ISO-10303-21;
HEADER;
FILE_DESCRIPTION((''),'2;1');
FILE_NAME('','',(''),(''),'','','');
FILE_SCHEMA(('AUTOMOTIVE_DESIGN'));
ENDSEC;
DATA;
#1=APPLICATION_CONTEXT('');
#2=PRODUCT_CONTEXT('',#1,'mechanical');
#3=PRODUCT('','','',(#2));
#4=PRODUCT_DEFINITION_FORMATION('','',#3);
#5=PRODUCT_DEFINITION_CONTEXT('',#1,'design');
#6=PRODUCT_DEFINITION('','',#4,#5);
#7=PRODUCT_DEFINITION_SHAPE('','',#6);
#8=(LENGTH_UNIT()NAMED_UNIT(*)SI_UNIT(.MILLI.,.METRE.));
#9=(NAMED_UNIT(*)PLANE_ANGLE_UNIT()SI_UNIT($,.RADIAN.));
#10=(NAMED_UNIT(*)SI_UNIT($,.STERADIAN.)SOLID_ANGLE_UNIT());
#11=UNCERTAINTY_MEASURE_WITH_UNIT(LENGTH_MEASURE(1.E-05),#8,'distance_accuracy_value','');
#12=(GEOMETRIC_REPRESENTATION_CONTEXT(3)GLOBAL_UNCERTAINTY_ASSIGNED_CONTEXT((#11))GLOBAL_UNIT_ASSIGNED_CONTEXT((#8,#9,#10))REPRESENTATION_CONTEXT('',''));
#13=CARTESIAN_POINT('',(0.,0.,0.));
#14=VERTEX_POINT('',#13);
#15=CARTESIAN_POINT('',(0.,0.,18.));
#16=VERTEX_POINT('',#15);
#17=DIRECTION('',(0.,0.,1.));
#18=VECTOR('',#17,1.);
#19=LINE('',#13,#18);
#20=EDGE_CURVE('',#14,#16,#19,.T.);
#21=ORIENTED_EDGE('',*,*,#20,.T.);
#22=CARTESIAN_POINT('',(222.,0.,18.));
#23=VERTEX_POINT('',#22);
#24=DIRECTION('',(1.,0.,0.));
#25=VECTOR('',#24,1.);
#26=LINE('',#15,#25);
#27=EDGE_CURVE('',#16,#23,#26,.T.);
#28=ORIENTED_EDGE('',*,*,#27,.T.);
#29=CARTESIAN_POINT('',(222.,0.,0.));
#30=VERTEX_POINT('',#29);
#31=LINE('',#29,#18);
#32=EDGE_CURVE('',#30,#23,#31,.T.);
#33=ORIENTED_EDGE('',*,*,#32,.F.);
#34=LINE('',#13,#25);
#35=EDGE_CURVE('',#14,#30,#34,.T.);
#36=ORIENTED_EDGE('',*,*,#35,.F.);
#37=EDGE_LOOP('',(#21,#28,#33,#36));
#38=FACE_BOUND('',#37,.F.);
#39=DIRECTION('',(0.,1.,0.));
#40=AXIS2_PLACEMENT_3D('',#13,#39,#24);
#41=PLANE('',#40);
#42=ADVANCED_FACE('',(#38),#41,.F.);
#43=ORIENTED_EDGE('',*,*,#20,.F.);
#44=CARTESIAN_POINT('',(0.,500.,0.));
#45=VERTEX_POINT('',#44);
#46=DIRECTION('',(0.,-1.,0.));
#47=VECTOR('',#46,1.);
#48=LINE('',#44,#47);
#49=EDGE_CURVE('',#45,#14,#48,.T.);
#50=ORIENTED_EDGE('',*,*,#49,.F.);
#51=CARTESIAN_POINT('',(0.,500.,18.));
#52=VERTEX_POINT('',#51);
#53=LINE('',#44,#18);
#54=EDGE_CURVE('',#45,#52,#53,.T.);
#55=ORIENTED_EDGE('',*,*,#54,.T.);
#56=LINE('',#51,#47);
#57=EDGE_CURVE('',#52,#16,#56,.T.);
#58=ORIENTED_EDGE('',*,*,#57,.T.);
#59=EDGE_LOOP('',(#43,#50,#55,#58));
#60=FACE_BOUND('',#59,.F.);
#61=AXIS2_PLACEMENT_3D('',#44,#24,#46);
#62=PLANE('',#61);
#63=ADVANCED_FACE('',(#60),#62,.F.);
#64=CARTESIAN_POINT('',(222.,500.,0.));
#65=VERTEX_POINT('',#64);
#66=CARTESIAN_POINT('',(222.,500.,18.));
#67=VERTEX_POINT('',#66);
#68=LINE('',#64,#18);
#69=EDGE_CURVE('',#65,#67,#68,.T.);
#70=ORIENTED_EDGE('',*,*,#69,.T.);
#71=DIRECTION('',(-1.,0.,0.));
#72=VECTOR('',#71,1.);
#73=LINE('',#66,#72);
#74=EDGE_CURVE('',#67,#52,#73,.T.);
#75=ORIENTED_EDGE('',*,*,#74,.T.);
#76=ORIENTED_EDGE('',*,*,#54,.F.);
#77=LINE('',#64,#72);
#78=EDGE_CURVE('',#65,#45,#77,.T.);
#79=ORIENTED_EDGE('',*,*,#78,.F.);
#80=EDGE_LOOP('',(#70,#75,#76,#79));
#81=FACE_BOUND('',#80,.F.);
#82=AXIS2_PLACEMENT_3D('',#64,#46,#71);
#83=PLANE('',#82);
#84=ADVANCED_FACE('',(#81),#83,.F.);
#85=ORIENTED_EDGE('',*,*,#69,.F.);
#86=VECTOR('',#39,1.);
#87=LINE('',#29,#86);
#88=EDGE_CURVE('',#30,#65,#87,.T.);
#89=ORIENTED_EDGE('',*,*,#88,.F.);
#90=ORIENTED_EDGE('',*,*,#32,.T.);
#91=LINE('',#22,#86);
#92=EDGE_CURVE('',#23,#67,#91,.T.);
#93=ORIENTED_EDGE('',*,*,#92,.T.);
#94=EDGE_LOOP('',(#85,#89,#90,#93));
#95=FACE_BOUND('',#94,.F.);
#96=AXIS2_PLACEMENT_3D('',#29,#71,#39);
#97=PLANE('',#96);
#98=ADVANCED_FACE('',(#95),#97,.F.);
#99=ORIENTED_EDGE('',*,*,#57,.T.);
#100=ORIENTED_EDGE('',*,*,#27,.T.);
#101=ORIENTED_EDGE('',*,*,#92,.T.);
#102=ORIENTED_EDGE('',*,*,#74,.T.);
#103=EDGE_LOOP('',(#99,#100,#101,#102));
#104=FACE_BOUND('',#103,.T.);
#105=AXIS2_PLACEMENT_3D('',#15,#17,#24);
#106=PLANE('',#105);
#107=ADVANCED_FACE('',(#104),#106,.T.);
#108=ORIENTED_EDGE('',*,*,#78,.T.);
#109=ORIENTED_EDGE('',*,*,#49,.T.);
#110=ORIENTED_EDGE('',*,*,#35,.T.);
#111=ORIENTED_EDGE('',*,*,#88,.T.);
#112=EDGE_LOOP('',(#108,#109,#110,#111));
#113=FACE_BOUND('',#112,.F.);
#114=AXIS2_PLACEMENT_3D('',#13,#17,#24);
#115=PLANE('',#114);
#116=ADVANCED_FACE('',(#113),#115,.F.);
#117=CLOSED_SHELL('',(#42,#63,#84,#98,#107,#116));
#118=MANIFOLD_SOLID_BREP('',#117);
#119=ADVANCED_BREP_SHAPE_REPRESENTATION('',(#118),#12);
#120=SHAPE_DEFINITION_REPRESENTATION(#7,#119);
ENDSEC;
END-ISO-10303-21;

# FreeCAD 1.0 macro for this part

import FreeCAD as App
import Part
import Sketcher

V = App.Vector

doc = App.newDocument("Part")
body = doc.addObject("PartDesign::Body", "Body")

sketch1 = doc.addObject("Sketcher::SketchObject", "Sketch")
body.addObject(sketch1)
sketch1.AttachmentSupport = (doc.XY_Plane, [""])
sketch1.MapMode = "FlatFace"
sketch1.addGeometry([
    Part.LineSegment(V(0, 500, 0), V(0, 0, 0)),
    Part.LineSegment(V(0, 0, 0), V(222, 0, 0)),
    Part.LineSegment(V(222, 0, 0), V(222, 500, 0)),
    Part.LineSegment(V(222, 500, 0), V(0, 500, 0)),
], False)
sketch1.addConstraint([
    Sketcher.Constraint("Coincident", 0, 2, 1, 1),
    Sketcher.Constraint("Coincident", 1, 2, 2, 1),
    Sketcher.Constraint("Coincident", 2, 2, 3, 1),
    Sketcher.Constraint("Coincident", 3, 2, 0, 1),
    Sketcher.Constraint("Vertical", 0),
    Sketcher.Constraint("Horizontal", 1),
    Sketcher.Constraint("Vertical", 2),
    Sketcher.Constraint("Horizontal", 3),
    Sketcher.Constraint("Coincident", 0, 2, -1, 1),
    Sketcher.Constraint("DistanceX", 1, 1, 1, 2, 222.0),
    Sketcher.Constraint("DistanceY", 0, 2, 0, 1, 500.0),
])
pad1 = doc.addObject("PartDesign::Pad", "Pad")
body.addObject(pad1)
pad1.Profile = sketch1
pad1.Length = 18

doc.recompute()
